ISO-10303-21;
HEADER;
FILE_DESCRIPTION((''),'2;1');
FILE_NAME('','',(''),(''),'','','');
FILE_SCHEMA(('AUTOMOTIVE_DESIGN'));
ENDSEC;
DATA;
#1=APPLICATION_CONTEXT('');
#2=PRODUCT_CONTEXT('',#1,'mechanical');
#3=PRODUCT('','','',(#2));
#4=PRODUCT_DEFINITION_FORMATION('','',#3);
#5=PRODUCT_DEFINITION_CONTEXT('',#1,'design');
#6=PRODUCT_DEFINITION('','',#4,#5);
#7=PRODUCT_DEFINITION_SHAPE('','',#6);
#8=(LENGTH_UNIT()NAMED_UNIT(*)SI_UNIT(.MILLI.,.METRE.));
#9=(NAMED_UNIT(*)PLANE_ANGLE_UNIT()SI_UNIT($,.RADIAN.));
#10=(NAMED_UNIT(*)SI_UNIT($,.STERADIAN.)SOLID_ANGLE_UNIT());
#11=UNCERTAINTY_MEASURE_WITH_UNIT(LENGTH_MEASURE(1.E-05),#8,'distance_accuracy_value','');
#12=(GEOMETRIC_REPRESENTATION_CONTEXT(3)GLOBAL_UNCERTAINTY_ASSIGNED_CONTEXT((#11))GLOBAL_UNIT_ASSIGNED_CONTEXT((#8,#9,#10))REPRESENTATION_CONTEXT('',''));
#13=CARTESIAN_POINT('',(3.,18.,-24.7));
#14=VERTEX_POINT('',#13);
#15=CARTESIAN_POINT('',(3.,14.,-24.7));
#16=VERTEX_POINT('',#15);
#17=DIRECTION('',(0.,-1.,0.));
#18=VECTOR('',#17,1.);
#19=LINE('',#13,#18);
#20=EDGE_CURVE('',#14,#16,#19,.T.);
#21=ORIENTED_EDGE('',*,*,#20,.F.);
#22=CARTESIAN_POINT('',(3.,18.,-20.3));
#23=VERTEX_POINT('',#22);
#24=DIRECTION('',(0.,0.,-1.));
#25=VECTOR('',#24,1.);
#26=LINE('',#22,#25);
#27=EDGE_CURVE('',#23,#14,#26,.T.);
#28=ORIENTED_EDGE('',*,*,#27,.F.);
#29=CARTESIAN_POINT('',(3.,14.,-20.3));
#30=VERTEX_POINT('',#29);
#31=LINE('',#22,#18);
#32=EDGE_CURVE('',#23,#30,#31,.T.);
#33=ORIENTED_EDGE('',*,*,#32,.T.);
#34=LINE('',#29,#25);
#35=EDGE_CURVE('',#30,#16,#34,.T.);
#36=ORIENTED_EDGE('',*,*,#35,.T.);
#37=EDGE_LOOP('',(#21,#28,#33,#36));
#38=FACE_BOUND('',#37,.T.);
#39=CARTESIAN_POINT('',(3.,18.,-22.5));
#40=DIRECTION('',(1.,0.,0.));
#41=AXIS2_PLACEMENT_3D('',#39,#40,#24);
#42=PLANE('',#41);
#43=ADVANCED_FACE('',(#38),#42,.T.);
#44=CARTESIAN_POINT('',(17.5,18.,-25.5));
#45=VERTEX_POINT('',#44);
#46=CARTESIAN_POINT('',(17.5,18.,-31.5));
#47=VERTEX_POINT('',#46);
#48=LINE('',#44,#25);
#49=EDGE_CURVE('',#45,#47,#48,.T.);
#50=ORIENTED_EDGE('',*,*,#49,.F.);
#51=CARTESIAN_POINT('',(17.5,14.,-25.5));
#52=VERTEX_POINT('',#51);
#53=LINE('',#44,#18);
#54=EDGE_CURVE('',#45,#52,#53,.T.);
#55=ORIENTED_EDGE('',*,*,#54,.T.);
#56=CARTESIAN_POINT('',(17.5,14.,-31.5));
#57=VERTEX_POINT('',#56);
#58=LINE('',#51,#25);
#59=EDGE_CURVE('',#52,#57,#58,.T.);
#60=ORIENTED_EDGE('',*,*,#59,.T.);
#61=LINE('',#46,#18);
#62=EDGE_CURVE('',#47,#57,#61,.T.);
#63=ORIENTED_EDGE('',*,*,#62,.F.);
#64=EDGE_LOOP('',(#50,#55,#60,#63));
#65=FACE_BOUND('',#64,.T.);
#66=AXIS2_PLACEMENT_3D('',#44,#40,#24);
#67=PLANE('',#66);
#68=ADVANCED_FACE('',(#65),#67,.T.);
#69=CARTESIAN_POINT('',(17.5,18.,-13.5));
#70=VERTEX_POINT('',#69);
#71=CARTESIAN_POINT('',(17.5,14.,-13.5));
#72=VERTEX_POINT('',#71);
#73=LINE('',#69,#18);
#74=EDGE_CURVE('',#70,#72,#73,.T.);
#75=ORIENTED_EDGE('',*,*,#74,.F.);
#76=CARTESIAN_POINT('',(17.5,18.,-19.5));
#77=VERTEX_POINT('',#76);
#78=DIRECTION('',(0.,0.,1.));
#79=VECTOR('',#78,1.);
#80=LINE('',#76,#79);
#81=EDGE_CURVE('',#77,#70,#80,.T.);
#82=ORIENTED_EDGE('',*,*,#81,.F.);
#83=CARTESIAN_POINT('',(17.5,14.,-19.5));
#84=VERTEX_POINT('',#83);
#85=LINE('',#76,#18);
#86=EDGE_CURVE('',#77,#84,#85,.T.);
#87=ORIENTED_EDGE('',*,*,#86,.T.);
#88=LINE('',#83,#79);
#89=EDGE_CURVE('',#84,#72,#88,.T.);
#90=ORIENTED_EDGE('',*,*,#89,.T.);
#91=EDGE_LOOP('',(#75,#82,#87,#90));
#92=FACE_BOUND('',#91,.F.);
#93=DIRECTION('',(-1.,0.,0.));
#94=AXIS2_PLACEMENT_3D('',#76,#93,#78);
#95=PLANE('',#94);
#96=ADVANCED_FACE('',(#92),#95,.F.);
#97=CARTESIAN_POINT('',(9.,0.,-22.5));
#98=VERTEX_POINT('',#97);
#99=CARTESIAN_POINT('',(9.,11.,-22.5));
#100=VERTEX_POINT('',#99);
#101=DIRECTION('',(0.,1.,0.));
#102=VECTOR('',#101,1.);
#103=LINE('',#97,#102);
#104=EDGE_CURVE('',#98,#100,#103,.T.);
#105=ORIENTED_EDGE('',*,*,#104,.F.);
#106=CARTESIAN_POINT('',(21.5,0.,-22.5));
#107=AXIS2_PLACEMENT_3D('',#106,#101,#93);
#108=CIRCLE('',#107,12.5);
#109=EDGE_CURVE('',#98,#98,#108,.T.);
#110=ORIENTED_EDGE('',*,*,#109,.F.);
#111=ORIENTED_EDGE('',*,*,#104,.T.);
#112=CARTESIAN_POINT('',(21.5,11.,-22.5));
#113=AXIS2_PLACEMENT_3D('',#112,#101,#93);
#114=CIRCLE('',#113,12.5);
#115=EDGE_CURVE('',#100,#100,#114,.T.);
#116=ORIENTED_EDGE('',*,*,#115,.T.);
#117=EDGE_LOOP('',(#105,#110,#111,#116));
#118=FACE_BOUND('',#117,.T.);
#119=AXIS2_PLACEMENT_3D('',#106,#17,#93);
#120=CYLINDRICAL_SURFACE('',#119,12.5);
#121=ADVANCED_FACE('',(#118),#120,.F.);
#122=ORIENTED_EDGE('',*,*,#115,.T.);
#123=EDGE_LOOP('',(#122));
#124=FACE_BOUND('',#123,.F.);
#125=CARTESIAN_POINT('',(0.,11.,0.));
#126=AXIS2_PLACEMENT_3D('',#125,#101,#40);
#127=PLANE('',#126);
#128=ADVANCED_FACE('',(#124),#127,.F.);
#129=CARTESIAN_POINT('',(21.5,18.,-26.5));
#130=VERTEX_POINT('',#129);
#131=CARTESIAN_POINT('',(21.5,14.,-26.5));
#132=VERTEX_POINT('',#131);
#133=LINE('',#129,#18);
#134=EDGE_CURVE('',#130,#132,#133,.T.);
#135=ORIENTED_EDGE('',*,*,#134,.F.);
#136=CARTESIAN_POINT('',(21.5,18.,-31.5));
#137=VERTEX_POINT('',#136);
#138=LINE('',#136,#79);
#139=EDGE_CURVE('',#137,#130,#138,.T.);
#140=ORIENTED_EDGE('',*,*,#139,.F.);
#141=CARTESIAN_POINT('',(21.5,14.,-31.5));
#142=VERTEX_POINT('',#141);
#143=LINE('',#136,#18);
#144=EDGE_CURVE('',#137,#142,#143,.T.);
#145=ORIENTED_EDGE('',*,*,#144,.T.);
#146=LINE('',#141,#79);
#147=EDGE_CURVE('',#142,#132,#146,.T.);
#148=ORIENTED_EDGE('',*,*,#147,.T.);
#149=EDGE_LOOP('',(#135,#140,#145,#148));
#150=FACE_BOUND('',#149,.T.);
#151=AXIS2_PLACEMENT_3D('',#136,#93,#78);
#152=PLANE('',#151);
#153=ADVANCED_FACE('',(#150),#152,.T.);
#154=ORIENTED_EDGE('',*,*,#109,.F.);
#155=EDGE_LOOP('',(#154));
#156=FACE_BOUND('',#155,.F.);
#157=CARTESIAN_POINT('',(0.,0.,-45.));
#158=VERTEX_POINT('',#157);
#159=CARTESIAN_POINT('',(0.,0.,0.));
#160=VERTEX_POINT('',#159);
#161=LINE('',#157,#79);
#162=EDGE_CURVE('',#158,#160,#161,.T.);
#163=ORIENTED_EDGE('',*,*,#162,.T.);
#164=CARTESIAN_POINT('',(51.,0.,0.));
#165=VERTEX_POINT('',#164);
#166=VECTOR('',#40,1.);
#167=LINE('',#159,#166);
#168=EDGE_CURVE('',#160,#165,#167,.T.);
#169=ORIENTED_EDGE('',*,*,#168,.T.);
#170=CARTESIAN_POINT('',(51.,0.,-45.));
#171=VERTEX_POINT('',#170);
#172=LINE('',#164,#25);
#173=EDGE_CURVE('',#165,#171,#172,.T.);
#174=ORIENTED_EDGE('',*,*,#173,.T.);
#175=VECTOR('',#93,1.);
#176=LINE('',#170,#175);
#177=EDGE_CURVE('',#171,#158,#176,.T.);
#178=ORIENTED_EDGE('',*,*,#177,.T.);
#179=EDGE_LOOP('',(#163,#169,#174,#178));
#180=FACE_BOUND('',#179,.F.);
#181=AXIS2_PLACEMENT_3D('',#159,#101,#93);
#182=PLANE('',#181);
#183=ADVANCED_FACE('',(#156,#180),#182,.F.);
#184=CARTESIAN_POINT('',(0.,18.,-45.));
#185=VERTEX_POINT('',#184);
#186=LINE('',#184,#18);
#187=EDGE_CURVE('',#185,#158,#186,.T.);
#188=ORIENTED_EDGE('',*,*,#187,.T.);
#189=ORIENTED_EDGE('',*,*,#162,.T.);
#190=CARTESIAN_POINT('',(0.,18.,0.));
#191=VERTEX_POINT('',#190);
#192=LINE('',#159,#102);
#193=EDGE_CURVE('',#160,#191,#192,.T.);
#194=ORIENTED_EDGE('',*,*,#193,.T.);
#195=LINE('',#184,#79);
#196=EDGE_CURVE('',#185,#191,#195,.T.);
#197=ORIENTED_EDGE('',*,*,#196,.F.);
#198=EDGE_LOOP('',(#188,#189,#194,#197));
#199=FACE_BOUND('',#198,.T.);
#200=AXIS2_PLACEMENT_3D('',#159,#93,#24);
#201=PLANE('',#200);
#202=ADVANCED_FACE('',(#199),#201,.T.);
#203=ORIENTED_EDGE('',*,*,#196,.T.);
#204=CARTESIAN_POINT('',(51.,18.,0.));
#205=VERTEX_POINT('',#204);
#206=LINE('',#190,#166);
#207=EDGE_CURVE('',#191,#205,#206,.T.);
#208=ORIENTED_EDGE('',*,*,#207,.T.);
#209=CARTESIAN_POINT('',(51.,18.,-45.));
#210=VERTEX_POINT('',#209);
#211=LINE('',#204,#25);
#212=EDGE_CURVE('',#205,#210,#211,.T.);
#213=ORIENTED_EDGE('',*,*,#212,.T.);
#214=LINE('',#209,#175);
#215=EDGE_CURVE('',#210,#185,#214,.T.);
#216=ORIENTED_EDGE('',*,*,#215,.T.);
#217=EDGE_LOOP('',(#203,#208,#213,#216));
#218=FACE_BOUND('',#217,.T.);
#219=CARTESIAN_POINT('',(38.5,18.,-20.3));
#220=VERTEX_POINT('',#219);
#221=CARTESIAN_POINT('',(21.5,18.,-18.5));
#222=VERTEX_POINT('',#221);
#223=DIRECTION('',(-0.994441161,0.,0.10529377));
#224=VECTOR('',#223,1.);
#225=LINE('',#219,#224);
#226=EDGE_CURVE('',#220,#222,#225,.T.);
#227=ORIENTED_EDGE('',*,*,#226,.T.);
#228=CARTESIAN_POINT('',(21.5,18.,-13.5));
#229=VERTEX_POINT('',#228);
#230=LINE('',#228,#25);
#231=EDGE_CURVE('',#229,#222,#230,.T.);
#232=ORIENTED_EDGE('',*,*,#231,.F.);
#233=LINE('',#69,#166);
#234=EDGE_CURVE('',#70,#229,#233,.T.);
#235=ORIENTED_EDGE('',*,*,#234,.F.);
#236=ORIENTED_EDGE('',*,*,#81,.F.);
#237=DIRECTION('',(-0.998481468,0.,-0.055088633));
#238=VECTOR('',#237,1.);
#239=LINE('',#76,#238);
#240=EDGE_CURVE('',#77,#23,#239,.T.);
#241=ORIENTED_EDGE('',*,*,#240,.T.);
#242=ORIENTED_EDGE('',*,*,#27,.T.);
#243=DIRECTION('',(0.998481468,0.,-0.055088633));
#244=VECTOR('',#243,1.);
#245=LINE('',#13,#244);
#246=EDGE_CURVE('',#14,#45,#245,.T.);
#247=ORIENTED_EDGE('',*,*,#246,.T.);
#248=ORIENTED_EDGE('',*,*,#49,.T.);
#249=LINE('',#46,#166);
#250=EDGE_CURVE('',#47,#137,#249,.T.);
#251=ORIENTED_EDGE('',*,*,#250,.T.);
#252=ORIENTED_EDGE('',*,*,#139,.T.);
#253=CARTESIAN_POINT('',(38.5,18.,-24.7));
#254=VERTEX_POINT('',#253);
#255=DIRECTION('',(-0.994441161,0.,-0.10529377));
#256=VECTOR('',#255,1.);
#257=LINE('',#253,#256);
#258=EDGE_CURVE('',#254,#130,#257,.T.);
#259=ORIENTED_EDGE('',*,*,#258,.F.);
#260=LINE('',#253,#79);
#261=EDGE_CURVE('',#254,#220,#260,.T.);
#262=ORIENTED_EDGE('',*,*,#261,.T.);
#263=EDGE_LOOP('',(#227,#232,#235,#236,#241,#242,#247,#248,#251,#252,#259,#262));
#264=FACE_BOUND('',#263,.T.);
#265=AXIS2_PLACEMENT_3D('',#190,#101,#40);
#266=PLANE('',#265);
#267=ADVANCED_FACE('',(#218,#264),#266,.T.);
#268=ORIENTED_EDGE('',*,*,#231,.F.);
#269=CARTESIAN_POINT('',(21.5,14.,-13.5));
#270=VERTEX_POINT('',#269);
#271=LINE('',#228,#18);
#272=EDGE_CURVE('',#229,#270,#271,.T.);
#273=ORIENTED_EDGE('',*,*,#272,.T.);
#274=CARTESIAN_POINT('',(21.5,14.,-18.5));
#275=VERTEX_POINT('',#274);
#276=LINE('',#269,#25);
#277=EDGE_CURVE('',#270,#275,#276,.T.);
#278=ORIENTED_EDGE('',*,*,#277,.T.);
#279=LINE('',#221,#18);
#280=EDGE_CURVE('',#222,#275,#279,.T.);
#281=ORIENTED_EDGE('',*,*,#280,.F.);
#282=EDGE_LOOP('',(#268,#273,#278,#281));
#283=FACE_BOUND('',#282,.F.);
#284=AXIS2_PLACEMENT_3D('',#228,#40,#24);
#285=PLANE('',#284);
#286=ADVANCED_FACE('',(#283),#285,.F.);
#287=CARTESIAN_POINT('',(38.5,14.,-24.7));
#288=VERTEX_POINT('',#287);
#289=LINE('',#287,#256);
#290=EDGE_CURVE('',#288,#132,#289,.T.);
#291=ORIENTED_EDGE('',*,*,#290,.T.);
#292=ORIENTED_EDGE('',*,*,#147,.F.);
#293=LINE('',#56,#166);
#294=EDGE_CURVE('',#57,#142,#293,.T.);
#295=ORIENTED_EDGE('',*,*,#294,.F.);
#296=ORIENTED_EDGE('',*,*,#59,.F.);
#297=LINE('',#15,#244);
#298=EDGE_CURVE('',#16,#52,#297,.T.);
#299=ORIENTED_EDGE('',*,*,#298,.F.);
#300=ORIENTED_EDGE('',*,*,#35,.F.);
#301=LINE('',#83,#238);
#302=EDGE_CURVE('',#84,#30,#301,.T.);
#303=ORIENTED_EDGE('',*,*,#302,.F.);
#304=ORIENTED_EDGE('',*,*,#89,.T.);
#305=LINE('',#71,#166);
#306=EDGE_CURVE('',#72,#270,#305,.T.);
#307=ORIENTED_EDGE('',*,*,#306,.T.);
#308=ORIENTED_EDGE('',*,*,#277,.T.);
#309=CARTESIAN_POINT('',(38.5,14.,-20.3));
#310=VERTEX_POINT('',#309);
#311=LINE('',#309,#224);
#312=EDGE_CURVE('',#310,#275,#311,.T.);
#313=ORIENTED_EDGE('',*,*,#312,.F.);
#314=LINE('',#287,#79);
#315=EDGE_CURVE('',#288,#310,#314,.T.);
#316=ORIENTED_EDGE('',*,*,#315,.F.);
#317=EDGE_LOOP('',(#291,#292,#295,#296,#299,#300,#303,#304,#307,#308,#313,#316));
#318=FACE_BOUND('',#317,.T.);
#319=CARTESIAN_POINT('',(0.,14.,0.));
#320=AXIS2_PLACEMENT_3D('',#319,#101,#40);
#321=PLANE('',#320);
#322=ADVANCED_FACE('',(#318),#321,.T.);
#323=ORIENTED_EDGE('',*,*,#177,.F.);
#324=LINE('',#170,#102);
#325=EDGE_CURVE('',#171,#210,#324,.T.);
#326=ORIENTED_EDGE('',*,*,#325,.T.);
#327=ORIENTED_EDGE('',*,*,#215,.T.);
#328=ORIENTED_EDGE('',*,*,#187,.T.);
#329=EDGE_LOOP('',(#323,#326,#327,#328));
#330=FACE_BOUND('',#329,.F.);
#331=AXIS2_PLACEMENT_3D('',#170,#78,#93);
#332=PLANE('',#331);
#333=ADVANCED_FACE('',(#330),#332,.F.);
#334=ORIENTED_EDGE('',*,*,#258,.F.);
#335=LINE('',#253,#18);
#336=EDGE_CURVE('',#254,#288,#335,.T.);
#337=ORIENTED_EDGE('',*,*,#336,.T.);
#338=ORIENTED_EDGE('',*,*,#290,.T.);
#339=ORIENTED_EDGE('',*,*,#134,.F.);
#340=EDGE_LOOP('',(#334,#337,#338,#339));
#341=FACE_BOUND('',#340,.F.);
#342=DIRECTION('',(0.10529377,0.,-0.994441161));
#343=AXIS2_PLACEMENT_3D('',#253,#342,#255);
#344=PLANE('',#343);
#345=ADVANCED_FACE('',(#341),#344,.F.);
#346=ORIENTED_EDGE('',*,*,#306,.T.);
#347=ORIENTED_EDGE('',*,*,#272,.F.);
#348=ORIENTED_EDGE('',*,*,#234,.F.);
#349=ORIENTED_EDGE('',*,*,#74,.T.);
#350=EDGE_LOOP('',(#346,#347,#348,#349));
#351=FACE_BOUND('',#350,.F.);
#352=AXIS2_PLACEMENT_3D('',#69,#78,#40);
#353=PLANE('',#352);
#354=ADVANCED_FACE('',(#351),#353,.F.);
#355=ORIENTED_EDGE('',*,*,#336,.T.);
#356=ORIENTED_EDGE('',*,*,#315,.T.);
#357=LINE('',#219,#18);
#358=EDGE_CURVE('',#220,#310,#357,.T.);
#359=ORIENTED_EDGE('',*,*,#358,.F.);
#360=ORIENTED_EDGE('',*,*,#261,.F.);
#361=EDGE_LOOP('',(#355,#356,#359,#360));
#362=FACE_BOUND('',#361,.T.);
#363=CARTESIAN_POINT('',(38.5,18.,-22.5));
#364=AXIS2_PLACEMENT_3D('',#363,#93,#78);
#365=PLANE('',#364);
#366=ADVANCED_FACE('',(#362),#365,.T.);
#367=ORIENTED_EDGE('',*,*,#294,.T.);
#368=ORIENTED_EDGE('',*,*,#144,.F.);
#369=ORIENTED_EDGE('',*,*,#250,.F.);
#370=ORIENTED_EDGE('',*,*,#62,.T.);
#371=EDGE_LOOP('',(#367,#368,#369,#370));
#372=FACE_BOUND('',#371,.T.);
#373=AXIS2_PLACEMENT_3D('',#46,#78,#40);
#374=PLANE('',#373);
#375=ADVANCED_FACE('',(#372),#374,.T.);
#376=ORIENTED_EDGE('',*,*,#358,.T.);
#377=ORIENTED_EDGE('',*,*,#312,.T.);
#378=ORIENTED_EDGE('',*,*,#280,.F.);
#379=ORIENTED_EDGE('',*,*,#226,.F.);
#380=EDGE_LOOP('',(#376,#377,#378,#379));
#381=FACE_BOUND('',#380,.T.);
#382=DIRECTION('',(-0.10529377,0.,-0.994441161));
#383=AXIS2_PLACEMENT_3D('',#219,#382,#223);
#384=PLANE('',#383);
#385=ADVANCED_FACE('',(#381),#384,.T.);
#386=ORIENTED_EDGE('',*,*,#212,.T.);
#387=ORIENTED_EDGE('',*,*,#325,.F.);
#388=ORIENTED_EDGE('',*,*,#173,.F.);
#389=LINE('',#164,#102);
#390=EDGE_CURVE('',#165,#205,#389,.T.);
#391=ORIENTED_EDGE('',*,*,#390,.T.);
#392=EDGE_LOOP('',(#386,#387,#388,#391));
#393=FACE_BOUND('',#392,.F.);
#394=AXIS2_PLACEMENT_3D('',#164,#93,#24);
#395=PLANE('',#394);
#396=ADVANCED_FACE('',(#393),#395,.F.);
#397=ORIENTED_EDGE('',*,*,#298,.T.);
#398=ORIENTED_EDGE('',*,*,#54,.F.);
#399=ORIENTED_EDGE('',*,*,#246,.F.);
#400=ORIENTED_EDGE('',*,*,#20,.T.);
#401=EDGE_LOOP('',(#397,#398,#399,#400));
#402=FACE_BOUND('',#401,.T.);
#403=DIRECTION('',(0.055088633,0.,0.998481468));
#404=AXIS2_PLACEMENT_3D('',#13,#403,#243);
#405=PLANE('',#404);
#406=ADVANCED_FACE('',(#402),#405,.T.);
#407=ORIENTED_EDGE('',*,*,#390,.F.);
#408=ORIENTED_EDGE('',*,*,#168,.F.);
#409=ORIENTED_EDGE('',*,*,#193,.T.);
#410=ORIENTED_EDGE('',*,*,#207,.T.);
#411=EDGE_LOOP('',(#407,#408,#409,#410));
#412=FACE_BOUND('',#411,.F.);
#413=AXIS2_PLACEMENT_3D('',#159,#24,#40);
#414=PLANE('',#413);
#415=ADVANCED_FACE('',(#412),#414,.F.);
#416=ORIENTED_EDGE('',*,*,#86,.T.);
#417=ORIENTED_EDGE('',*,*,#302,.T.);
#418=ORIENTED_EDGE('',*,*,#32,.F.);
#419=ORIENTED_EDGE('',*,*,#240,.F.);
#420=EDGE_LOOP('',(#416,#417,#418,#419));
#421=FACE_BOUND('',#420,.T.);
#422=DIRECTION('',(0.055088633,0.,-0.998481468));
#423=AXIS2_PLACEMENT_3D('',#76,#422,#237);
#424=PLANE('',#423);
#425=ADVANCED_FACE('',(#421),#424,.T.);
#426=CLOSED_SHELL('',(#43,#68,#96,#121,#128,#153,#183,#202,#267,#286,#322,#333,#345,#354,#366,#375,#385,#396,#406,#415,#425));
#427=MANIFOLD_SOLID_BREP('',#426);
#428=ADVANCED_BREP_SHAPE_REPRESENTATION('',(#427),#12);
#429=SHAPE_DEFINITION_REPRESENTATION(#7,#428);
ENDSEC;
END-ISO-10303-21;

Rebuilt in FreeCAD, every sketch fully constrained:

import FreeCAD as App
import Part
import Sketcher

V = App.Vector


def add_polygon(sketch, points):
    """Adds a closed chain of lines whose ends are joined by coincident constraints."""
    first, n = sketch.GeometryCount, len(points)
    for a, b in zip(points, points[1:] + points[:1]):
        sketch.addGeometry(Part.LineSegment(App.Vector(*a, 0), App.Vector(*b, 0)), False)
    for i in range(n):
        sketch.addConstraint(Sketcher.Constraint("Coincident", first + i, 2, first + (i + 1) % n, 1))

doc = App.newDocument("Part")
body = doc.addObject("PartDesign::Body", "Body")

# Sketch on XZ plane
sketch1 = body.newObject("Sketcher::SketchObject", "Sketch")
sketch1.AttachmentSupport = (doc.getObject("XZ_Plane"), [""])
sketch1.MapMode = "FlatFace"
add_polygon(sketch1, [(0, -45), (0, 0), (51, 0), (51, -45)])  # lines 0-3
sketch1.addGeometry(Part.Circle(V(22, -22, 0), V(0, 0, 1), 12), False)  # 4
sketch1.addConstraint([
    Sketcher.Constraint("Vertical", 0),
    Sketcher.Constraint("Horizontal", 1),
    Sketcher.Constraint("Vertical", 2),
    Sketcher.Constraint("Horizontal", 3),
    Sketcher.Constraint("Coincident", 0, 2, -1, 1),
    Sketcher.Constraint("Diameter", 4, 25.0),
    Sketcher.Constraint("DistanceX", 1, 1, 1, 2, 51.0),
    Sketcher.Constraint("DistanceY", 0, 1, 0, 2, 45.0),
    Sketcher.Constraint("DistanceX", -1, 1, 4, 3, 21.5),
    Sketcher.Constraint("DistanceY", 4, 3, -1, 1, 22.5),
])
pad1 = body.newObject("PartDesign::Pad", "Pad")
pad1.Profile = sketch1
pad1.Length = 11
pad1.Reversed = True

# Sketch on XZ plane
sketch2 = body.newObject("Sketcher::SketchObject", "Sketch001")
sketch2.AttachmentSupport = (doc.getObject("XZ_Plane"), [""])
sketch2.MapMode = "FlatFace"
sketch2.AttachmentOffset = App.Placement(V(0, 0, -11), App.Rotation())
add_polygon(sketch2, [(51, -45), (0, -45), (0, 0), (51, 0)])  # lines 0-3
sketch2.addConstraint([
    Sketcher.Constraint("Horizontal", 0),
    Sketcher.Constraint("Vertical", 1),
    Sketcher.Constraint("Horizontal", 2),
    Sketcher.Constraint("Vertical", 3),
    Sketcher.Constraint("Coincident", 1, 2, -1, 1),
    Sketcher.Constraint("DistanceX", 0, 2, 0, 1, 51.0),
    Sketcher.Constraint("DistanceY", 1, 1, 1, 2, 45.0),
])
pad2 = body.newObject("PartDesign::Pad", "Pad001")
pad2.Profile = sketch2
pad2.Length = 7
pad2.Reversed = True

# Sketch on XZ plane
sketch3 = body.newObject("Sketcher::SketchObject", "Sketch002")
sketch3.AttachmentSupport = (doc.getObject("XZ_Plane"), [""])
sketch3.MapMode = "FlatFace"
sketch3.AttachmentOffset = App.Placement(V(0, 0, -18), App.Rotation())
add_polygon(sketch3, [(3, -24.7), (3, -20.3), (17.5, -19.5), (17.5, -13.5), (21.5, -13.5), (21.5, -18.5), (38.5, -20.3), (38.5, -24.7), (21.5, -26.5), (21.5, -31.5), (17.5, -31.5), (17.5, -25.5)])  # lines 0-11
sketch3.addConstraint([
    Sketcher.Constraint("Vertical", 0),
    Sketcher.Constraint("Vertical", 2),
    Sketcher.Constraint("Horizontal", 3),
    Sketcher.Constraint("Vertical", 4),
    Sketcher.Constraint("Vertical", 6),
    Sketcher.Constraint("Vertical", 8),
    Sketcher.Constraint("Horizontal", 9),
    Sketcher.Constraint("Vertical", 10),
    Sketcher.Constraint("Horizontal", 0, 2, 5, 2),
    Sketcher.Constraint("Horizontal", 6, 2, 11, 2),
    Sketcher.Constraint("Vertical", 4, 2, 7, 2),
    Sketcher.Constraint("Vertical", 2, 2, 9, 2),
    Sketcher.Constraint("Equal", 4, 8),
    Sketcher.Constraint("Equal", 2, 10),
    Sketcher.Constraint("Equal", 5, 7),
    Sketcher.Constraint("DistanceX", 3, 1, 3, 2, 4.0),
    Sketcher.Constraint("DistanceY", 2, 1, 2, 2, 6.0),
    Sketcher.Constraint("DistanceY", 4, 2, 4, 1, 5.0),
    Sketcher.Constraint("DistanceY", 0, 1, 0, 2, 4.4),
    Sketcher.Constraint("DistanceX", 4, 2, 5, 2, 17.0),
    Sketcher.Constraint("DistanceY", 10, 2, 1, 2, 6.0),
    Sketcher.Constraint("DistanceX", -1, 1, 0, 2, 3.0),
    Sketcher.Constraint("DistanceY", 0, 2, -1, 1, 20.3),
    Sketcher.Constraint("DistanceX", -1, 1, 1, 2, 17.5),
])
pocket1 = body.newObject("PartDesign::Pocket", "Pocket")
pocket1.Profile = sketch3
pocket1.Length = 4
pocket1.Reversed = True

doc.recompute()
